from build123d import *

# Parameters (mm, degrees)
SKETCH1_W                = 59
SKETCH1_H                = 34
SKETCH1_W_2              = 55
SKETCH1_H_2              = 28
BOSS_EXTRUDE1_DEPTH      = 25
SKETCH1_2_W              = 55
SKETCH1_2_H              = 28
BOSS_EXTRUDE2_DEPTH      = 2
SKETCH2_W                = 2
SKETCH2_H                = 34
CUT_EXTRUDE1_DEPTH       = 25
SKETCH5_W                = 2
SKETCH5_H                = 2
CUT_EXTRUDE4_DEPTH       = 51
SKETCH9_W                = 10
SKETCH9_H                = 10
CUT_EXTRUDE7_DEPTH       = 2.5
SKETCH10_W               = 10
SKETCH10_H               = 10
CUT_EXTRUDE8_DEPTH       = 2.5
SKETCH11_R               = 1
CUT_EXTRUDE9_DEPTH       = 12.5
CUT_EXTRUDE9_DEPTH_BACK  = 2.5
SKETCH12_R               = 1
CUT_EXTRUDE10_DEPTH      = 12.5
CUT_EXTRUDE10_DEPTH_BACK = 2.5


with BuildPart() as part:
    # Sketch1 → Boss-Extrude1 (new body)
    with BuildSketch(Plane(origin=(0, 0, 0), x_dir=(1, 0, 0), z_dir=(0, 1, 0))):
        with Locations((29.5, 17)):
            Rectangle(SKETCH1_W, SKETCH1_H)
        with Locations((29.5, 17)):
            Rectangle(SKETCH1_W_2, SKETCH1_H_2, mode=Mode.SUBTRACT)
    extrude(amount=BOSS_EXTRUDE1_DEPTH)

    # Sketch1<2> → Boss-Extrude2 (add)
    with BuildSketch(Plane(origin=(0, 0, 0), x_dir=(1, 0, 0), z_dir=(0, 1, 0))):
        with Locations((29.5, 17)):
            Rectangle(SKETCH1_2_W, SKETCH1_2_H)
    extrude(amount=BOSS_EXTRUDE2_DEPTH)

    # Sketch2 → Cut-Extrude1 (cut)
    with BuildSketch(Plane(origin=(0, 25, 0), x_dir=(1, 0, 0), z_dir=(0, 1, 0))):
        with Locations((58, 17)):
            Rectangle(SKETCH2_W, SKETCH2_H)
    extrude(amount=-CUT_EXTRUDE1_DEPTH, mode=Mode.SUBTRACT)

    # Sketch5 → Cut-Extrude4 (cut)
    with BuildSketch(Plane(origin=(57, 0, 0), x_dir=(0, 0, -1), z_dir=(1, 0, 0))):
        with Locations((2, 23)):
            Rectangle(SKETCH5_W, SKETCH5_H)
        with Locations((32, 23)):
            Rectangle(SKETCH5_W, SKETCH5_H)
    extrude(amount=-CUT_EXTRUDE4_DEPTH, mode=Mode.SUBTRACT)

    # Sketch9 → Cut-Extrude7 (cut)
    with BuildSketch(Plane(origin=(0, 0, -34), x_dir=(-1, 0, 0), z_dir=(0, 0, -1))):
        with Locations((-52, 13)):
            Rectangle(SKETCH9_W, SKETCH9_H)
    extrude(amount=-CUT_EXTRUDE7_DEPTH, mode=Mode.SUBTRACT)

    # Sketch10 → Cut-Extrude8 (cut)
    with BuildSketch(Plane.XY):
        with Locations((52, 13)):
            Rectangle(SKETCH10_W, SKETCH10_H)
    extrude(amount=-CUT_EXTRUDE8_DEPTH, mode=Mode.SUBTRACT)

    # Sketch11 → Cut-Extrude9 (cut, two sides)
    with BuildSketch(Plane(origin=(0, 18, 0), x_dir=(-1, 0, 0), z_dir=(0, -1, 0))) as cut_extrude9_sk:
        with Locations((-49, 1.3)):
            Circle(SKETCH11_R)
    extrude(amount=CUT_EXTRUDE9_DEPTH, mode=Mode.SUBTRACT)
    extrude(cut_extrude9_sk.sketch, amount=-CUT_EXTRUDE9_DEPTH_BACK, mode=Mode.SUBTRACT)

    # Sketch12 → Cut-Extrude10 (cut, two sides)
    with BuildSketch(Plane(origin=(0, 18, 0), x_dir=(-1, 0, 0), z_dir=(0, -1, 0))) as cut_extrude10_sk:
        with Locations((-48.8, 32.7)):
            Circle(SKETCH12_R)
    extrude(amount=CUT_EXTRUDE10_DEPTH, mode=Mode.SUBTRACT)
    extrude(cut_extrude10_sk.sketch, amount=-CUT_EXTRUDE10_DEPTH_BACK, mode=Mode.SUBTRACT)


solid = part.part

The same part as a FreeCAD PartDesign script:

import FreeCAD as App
import Part
import Sketcher
from FreeCAD import Vector
Q = App.Units.Quantity


def add_polygon(sketch, points):
    """Adds a closed chain of lines whose ends are joined by coincident constraints."""
    first, n = sketch.GeometryCount, len(points)
    for a, b in zip(points, points[1:] + points[:1]):
        sketch.addGeometry(Part.LineSegment(App.Vector(*a, 0), App.Vector(*b, 0)), False)
    for i in range(n):
        sketch.addConstraint(Sketcher.Constraint("Coincident", first + i, 2, first + (i + 1) % n, 1))

doc = App.newDocument("Part")
body = doc.addObject("PartDesign::Body", "Body")

sketch1 = body.newObject("Sketcher::SketchObject", "Sketch")
sketch1.AttachmentSupport = (doc.getObject("XZ_Plane"), [""])
sketch1.MapMode = "FlatFace"
add_polygon(sketch1, [(0, -34), (0, 0), (59, 0), (59, -34)])
add_polygon(sketch1, [(57, -3), (2, -3), (2, -31), (57, -31)])
sketch1.addConstraint([
    Sketcher.Constraint("Vertical", 0),
    Sketcher.Constraint("Horizontal", 1),
    Sketcher.Constraint("Vertical", 2),
    Sketcher.Constraint("Horizontal", 3),
    Sketcher.Constraint("Horizontal", 4),
    Sketcher.Constraint("Vertical", 5),
    Sketcher.Constraint("Horizontal", 6),
    Sketcher.Constraint("Vertical", 7),
    Sketcher.Constraint("Coincident", 0, 2, -1, 1),
    Sketcher.Constraint("DistanceX", 1, 1, 1, 2, Q("59 mm")),
    Sketcher.Constraint("DistanceX", 4, 2, 4, 1, Q("55 mm")),
    Sketcher.Constraint("DistanceY", 0, 1, 0, 2, Q("34 mm")),
    Sketcher.Constraint("DistanceY", 5, 2, 5, 1, Q("28 mm")),
    Sketcher.Constraint("DistanceX", -1, 1, 4, 2, Q("2 mm")),
    Sketcher.Constraint("DistanceY", 4, 2, -1, 1, Q("3 mm")),
])
pad1 = body.newObject("PartDesign::Pad", "Pad")
pad1.Profile = sketch1
pad1.Length = 25
pad1.Reversed = True

sketch2 = body.newObject("Sketcher::SketchObject", "Sketch001")
sketch2.AttachmentSupport = (doc.getObject("XZ_Plane"), [""])
sketch2.MapMode = "FlatFace"
add_polygon(sketch2, [(2, -31), (2, -3), (57, -3), (57, -31)])
sketch2.addConstraint([
    Sketcher.Constraint("Vertical", 0),
    Sketcher.Constraint("Horizontal", 1),
    Sketcher.Constraint("Vertical", 2),
    Sketcher.Constraint("Horizontal", 3),
    Sketcher.Constraint("DistanceX", 1, 1, 1, 2, Q("55 mm")),
    Sketcher.Constraint("DistanceY", 0, 1, 0, 2, Q("28 mm")),
    Sketcher.Constraint("DistanceX", -1, 1, 0, 2, Q("2 mm")),
    Sketcher.Constraint("DistanceY", 0, 2, -1, 1, Q("3 mm")),
])
pad2 = body.newObject("PartDesign::Pad", "Pad001")
pad2.Profile = sketch2
pad2.Length = 2
pad2.Reversed = True

sketch3 = body.newObject("Sketcher::SketchObject", "Sketch002")
sketch3.AttachmentSupport = (doc.getObject("XZ_Plane"), [""])
sketch3.MapMode = "FlatFace"
sketch3.AttachmentOffset = App.Placement(Vector(0, 0, -25), App.Rotation())
add_polygon(sketch3, [(57, -34), (57, 0), (59, 0), (59, -34)])
sketch3.addConstraint([
    Sketcher.Constraint("Vertical", 0),
    Sketcher.Constraint("Horizontal", 1),
    Sketcher.Constraint("Vertical", 2),
    Sketcher.Constraint("Horizontal", 3),
    Sketcher.Constraint("PointOnObject", 0, 2, -1),
    Sketcher.Constraint("DistanceX", 1, 1, 1, 2, Q("2 mm")),
    Sketcher.Constraint("DistanceY", 0, 1, 0, 2, Q("34 mm")),
    Sketcher.Constraint("DistanceX", -1, 1, 0, 2, Q("57 mm")),
])
pocket1 = body.newObject("PartDesign::Pocket", "Pocket")
pocket1.Profile = sketch3
pocket1.Length = 25
pocket1.Reversed = True

sketch4 = body.newObject("Sketcher::SketchObject", "Sketch003")
sketch4.AttachmentSupport = (doc.getObject("YZ_Plane"), [""])
sketch4.MapMode = "FlatFace"
sketch4.AttachmentOffset = App.Placement(Vector(0, 0, 57), App.Rotation())
add_polygon(sketch4, [(24, -1), (22, -1), (22, -3), (24, -3)])
add_polygon(sketch4, [(24, -31), (22, -31), (22, -33), (24, -33)])
sketch4.addConstraint([
    Sketcher.Constraint("Horizontal", 0),
    Sketcher.Constraint("Vertical", 1),
    Sketcher.Constraint("Horizontal", 2),
    Sketcher.Constraint("Vertical", 3),
    Sketcher.Constraint("Horizontal", 4),
    Sketcher.Constraint("Vertical", 5),
    Sketcher.Constraint("Horizontal", 6),
    Sketcher.Constraint("Vertical", 7),
    Sketcher.Constraint("Vertical", 1, 2, 4, 2),
    Sketcher.Constraint("Vertical", 3, 2, 6, 2),
    Sketcher.Constraint("Equal", 6, 1),
    Sketcher.Constraint("Equal", 3, 5),
    Sketcher.Constraint("DistanceX", 0, 2, 0, 1, Q("2 mm")),
    Sketcher.Constraint("DistanceX", -1, 1, 0, 2, Q("22 mm")),
    Sketcher.Constraint("DistanceY", 0, 2, -1, 1, Q("1 mm")),
    Sketcher.Constraint("DistanceY", 4, 2, -1, 1, Q("31 mm")),
])
pocket2 = body.newObject("PartDesign::Pocket", "Pocket001")
pocket2.Profile = sketch4
pocket2.Length = 51

sketch5 = body.newObject("Sketcher::SketchObject", "Sketch004")
sketch5.AttachmentSupport = (doc.getObject("XY_Plane"), [""])
sketch5.MapMode = "FlatFace"
sketch5.AttachmentOffset = App.Placement(Vector(0, 0, -34), App.Rotation())
add_polygon(sketch5, [(57, 18), (57, 8), (47, 8), (47, 18)])
sketch5.addConstraint([
    Sketcher.Constraint("Vertical", 0),
    Sketcher.Constraint("Horizontal", 1),
    Sketcher.Constraint("Vertical", 2),
    Sketcher.Constraint("Horizontal", 3),
    Sketcher.Constraint("Equal", 3, 0),
    Sketcher.Constraint("DistanceX", 1, 2, 1, 1, Q("10 mm")),
    Sketcher.Constraint("DistanceX", -1, 1, 0, 2, Q("57 mm")),
    Sketcher.Constraint("DistanceY", -1, 1, 0, 2, Q("8 mm")),
])
pocket3 = body.newObject("PartDesign::Pocket", "Pocket002")
pocket3.Profile = sketch5
pocket3.Length = 2.5
pocket3.Reversed = True

sketch6 = body.newObject("Sketcher::SketchObject", "Sketch005")
sketch6.AttachmentSupport = (doc.getObject("XY_Plane"), [""])
sketch6.MapMode = "FlatFace"
add_polygon(sketch6, [(47, 18), (47, 8), (57, 8), (57, 18)])
sketch6.addConstraint([
    Sketcher.Constraint("Vertical", 0),
    Sketcher.Constraint("Horizontal", 1),
    Sketcher.Constraint("Vertical", 2),
    Sketcher.Constraint("Horizontal", 3),
    Sketcher.Constraint("Equal", 3, 0),
    Sketcher.Constraint("DistanceX", 1, 1, 1, 2, Q("10 mm")),
    Sketcher.Constraint("DistanceX", -1, 1, 0, 2, Q("47 mm")),
    Sketcher.Constraint("DistanceY", -1, 1, 0, 2, Q("8 mm")),
])
pocket4 = body.newObject("PartDesign::Pocket", "Pocket003")
pocket4.Profile = sketch6
pocket4.Length = 2.5

sketch7 = body.newObject("Sketcher::SketchObject", "Sketch006")
sketch7.AttachmentSupport = (doc.getObject("XZ_Plane"), [""])
sketch7.MapMode = "FlatFace"
sketch7.AttachmentOffset = App.Placement(Vector(0, 0, -18), App.Rotation())
sketch7.addGeometry(Part.Circle(Vector(49, -1.3, 0), Vector(0, 0, 1), 1), False)
sketch7.addConstraint([
    Sketcher.Constraint("Diameter", 0, Q("2 mm")),
    Sketcher.Constraint("DistanceX", -1, 1, 0, 3, Q("49 mm")),
    Sketcher.Constraint("DistanceY", 0, 3, -1, 1, Q("1.3 mm")),
])
pocket5 = body.newObject("PartDesign::Pocket", "Pocket004")
pocket5.Profile = sketch7
pocket5.Type = "TwoLengths"
pocket5.Length = 12.5
pocket5.Length2 = 2.5
pocket5.Reversed = True

sketch8 = body.newObject("Sketcher::SketchObject", "Sketch007")
sketch8.AttachmentSupport = (doc.getObject("XZ_Plane"), [""])
sketch8.MapMode = "FlatFace"
sketch8.AttachmentOffset = App.Placement(Vector(0, 0, -18), App.Rotation())
sketch8.addGeometry(Part.Circle(Vector(48.8, -32.7, 0), Vector(0, 0, 1), 1), False)
sketch8.addConstraint([
    Sketcher.Constraint("Diameter", 0, Q("2 mm")),
    Sketcher.Constraint("DistanceX", -1, 1, 0, 3, Q("48.8 mm")),
    Sketcher.Constraint("DistanceY", 0, 3, -1, 1, Q("32.7 mm")),
])
pocket6 = body.newObject("PartDesign::Pocket", "Pocket005")
pocket6.Profile = sketch8
pocket6.Type = "TwoLengths"
pocket6.Length = 12.5
pocket6.Length2 = 2.5
pocket6.Reversed = True

doc.recompute()
